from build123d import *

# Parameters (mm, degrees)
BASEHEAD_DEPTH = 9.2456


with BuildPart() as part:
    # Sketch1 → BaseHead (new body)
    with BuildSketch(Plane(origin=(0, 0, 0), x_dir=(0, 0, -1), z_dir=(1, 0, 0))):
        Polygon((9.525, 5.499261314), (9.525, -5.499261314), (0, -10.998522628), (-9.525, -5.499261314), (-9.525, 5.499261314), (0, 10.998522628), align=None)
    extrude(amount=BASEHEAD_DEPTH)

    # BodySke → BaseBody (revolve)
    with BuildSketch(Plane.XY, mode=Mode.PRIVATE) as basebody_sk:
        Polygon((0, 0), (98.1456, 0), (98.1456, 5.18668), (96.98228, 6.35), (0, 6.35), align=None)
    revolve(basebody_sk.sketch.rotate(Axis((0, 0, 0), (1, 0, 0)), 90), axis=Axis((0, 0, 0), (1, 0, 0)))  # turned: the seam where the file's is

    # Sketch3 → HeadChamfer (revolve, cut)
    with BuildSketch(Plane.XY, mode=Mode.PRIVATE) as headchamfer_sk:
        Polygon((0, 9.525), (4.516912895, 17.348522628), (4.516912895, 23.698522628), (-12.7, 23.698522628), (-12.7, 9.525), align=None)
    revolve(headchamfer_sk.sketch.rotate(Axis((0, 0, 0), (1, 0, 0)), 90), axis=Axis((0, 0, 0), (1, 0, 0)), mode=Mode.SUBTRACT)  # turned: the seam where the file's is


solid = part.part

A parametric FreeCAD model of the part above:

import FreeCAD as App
import Part
import Sketcher

V = App.Vector
Q = App.Units.Quantity

doc = App.newDocument("Part")
body = doc.addObject("PartDesign::Body", "Body")

# Sketch on YZ plane
sketch1 = body.newObject("Sketcher::SketchObject", "Sketch")
sketch1.AttachmentSupport = (doc.getObject("YZ_Plane"), [""])
sketch1.MapMode = "FlatFace"
sketch1.addGeometry([
    Part.LineSegment(V(-5.499261, -9.525, 0), V(5.499261, -9.525, 0)),  # 0
    Part.LineSegment(V(5.499261, -9.525, 0), V(10.998523, 0, 0)),  # 1
    Part.LineSegment(V(10.998523, 0, 0), V(5.499261, 9.525, 0)),  # 2
    Part.LineSegment(V(5.499261, 9.525, 0), V(-5.499261, 9.525, 0)),  # 3
    Part.LineSegment(V(-5.499261, 9.525, 0), V(-10.998523, 0, 0)),  # 4
    Part.LineSegment(V(-10.998523, 0, 0), V(-5.499261, -9.525, 0)),  # 5
], False)
sketch1.addConstraint([
    Sketcher.Constraint("Coincident", 0, 2, 1, 1),
    Sketcher.Constraint("Coincident", 1, 2, 2, 1),
    Sketcher.Constraint("Coincident", 2, 2, 3, 1),
    Sketcher.Constraint("Coincident", 3, 2, 4, 1),
    Sketcher.Constraint("Coincident", 4, 2, 5, 1),
    Sketcher.Constraint("Coincident", 5, 2, 0, 1),
    Sketcher.Constraint("Horizontal", 0),
    Sketcher.Constraint("Horizontal", 3),
    Sketcher.Constraint("Symmetric", 0, 2, 3, 2, -1, 1),
    Sketcher.Constraint("Symmetric", 1, 2, 4, 2, -1, 1),
    Sketcher.Constraint("PointOnObject", 1, 2, -1),
    Sketcher.Constraint("Parallel", 2, 5),
    Sketcher.Constraint("Vertical", 0, 2, 2, 2),
    Sketcher.Constraint("Angle", 1, Q("60 deg")),
    Sketcher.Constraint("DistanceY", 0, 2, 2, 2, Q("0.75 in")),
    Sketcher.Constraint("DistanceX", 0, 1, 0, 2, 10.998523),
])
pad1 = body.newObject("PartDesign::Pad", "Pad")
pad1.Profile = sketch1
pad1.Length = Q("0.364 in")

# Sketch on XY plane
sketch2 = body.newObject("Sketcher::SketchObject", "Sketch001")
sketch2.AttachmentSupport = (doc.getObject("XY_Plane"), [""])
sketch2.MapMode = "FlatFace"
sketch2.addGeometry([
    Part.LineSegment(V(0, 0, 0), V(98.1456, 0, 0)),  # 0
    Part.LineSegment(V(98.1456, 0, 0), V(98.1456, 5.18668, 0)),  # 1
    Part.LineSegment(V(98.1456, 5.18668, 0), V(96.98228, 6.35, 0)),  # 2
    Part.LineSegment(V(96.98228, 6.35, 0), V(0, 6.35, 0)),  # 3
    Part.LineSegment(V(0, 6.35, 0), V(0, 0, 0)),  # 4
], False)
sketch2.addConstraint([
    Sketcher.Constraint("Coincident", 0, 2, 1, 1),
    Sketcher.Constraint("Coincident", 1, 2, 2, 1),
    Sketcher.Constraint("Coincident", 2, 2, 3, 1),
    Sketcher.Constraint("Coincident", 3, 2, 4, 1),
    Sketcher.Constraint("Coincident", 4, 2, 0, 1),
    Sketcher.Constraint("Horizontal", 0),
    Sketcher.Constraint("Vertical", 1),
    Sketcher.Constraint("Horizontal", 3),
    Sketcher.Constraint("Vertical", 4),
    Sketcher.Constraint("Coincident", 4, 2, -1, 1),
    Sketcher.Constraint("Angle", 2, Q("135 deg")),
    Sketcher.Constraint("DistanceY", 4, 2, 4, 1, Q("0.25 in")),
    Sketcher.Constraint("DistanceX", 0, 1, 0, 2, Q("3.864 in")),
    Sketcher.Constraint("DistanceX", 3, 2, 3, 1, Q("3.8182 in")),
])
revolution = body.newObject("PartDesign::Revolution", "Revolution")
revolution.Profile = sketch2
revolution.ReferenceAxis = (sketch2, ["H_Axis"])
revolution.Angle = 360

# Sketch on XY plane
sketch3 = body.newObject("Sketcher::SketchObject", "Sketch002")
sketch3.AttachmentSupport = (doc.getObject("XY_Plane"), [""])
sketch3.MapMode = "FlatFace"
sketch3.addGeometry([
    Part.LineSegment(V(0, 9.525, 0), V(4.516913, 17.348523, 0)),  # 0
    Part.LineSegment(V(4.516913, 17.348523, 0), V(4.516913, 23.698523, 0)),  # 1
    Part.LineSegment(V(4.516913, 23.698523, 0), V(-12.7, 23.698523, 0)),  # 2
    Part.LineSegment(V(-12.7, 23.698523, 0), V(-12.7, 9.525, 0)),  # 3
    Part.LineSegment(V(-12.7, 9.525, 0), V(0, 9.525, 0)),  # 4
], False)
sketch3.addConstraint([
    Sketcher.Constraint("Coincident", 0, 2, 1, 1),
    Sketcher.Constraint("Coincident", 1, 2, 2, 1),
    Sketcher.Constraint("Coincident", 2, 2, 3, 1),
    Sketcher.Constraint("Coincident", 3, 2, 4, 1),
    Sketcher.Constraint("Coincident", 4, 2, 0, 1),
    Sketcher.Constraint("Vertical", 1),
    Sketcher.Constraint("Horizontal", 2),
    Sketcher.Constraint("Vertical", 3),
    Sketcher.Constraint("Horizontal", 4),
    Sketcher.Constraint("PointOnObject", 4, 2, -2),
    Sketcher.Constraint("DistanceX", 4, 1, 4, 2, Q("0.5 in")),
    Sketcher.Constraint("Angle", 0, Q("60 deg")),
    Sketcher.Constraint("DistanceY", 1, 1, 1, 2, Q("0.25 in")),
    Sketcher.Constraint("DistanceY", -1, 1, 3, 2, Q("0.375 in")),
    Sketcher.Constraint("DistanceX", 2, 2, 2, 1, 17.216913),
])
groove = body.newObject("PartDesign::Groove", "Groove")
groove.Profile = sketch3
groove.ReferenceAxis = (sketch3, ["H_Axis"])
groove.Angle = 360

doc.recompute()
